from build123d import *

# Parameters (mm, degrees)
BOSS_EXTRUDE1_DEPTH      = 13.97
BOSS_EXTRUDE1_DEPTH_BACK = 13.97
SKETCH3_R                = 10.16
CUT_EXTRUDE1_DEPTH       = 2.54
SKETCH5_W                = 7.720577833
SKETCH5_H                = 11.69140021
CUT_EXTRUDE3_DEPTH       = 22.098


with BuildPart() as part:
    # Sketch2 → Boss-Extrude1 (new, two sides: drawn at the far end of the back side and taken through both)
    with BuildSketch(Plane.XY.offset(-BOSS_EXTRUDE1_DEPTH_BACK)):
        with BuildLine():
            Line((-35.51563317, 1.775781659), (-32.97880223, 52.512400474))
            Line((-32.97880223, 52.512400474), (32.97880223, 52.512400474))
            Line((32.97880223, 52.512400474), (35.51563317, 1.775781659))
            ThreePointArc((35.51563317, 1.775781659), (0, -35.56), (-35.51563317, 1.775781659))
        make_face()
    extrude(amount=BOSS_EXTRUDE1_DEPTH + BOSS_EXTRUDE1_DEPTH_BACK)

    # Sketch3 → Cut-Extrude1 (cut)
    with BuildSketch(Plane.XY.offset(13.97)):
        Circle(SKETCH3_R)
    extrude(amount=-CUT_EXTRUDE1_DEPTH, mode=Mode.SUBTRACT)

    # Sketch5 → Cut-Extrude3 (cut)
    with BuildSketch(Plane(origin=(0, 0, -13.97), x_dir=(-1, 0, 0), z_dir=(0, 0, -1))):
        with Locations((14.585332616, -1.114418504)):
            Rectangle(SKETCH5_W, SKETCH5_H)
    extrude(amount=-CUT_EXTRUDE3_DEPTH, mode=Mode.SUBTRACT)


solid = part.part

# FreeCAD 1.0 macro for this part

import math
import FreeCAD as App
import Part
import Sketcher
from FreeCAD import Vector
Q = App.Units.Quantity

doc = App.newDocument("Part")
body = doc.addObject("PartDesign::Body", "Body")

sketch1 = body.newObject("Sketcher::SketchObject", "Sketch")
sketch1.AttachmentSupport = (doc.getObject("XY_Plane"), [""])
sketch1.MapMode = "FlatFace"
sketch1.addGeometry([
    Part.LineSegment(Vector(-33, 53, 0), Vector(-36, 2, 0)),
    Part.ArcOfCircle(Part.Circle(Vector(0, 0, 0), Vector(0, 0, 1), 36), math.radians(177), math.radians(363)),
    Part.LineSegment(Vector(36, 2, 0), Vector(33, 53, 0)),
    Part.LineSegment(Vector(33, 53, 0), Vector(-33, 53, 0)),
], False)
sketch1.addConstraint([
    Sketcher.Constraint("Tangent", 0, 2, 1, 1),
    Sketcher.Constraint("Tangent", 1, 2, 2, 1),
    Sketcher.Constraint("Coincident", 2, 2, 3, 1),
    Sketcher.Constraint("Coincident", 3, 2, 0, 1),
    Sketcher.Constraint("Horizontal", 3),
    Sketcher.Constraint("Coincident", 1, 3, -1, 1),
    Sketcher.Constraint("Horizontal", 0, 2, 1, 2),
    Sketcher.Constraint("Radius", 1, Q("1.4 in")),
    Sketcher.Constraint("Distance", 0, Q("2 in")),
    Sketcher.Constraint("DistanceY", -1, 1, 2, 2, Q("52.5124 mm")),
])
pad1 = body.newObject("PartDesign::Pad", "Pad")
pad1.Profile = sketch1
pad1.Type = "TwoLengths"
pad1.Length = Q("0.55 in")
pad1.Length2 = Q("0.55 in")

sketch2 = body.newObject("Sketcher::SketchObject", "Sketch001")
sketch2.AttachmentSupport = (doc.getObject("XY_Plane"), [""])
sketch2.MapMode = "FlatFace"
sketch2.AttachmentOffset = App.Placement(Vector(0, 0, 0.55 * 25.4), App.Rotation())
sketch2.addGeometry(Part.Circle(Vector(0, 0, 0), Vector(0, 0, 1), 10), False)
sketch2.addConstraint([
    Sketcher.Constraint("Coincident", 0, 3, -1, 1),
    Sketcher.Constraint("Diameter", 0, Q("0.8 in")),
])
pocket1 = body.newObject("PartDesign::Pocket", "Pocket")
pocket1.Profile = sketch2
pocket1.Length = Q("0.1 in")

sketch3 = body.newObject("Sketcher::SketchObject", "Sketch002")
sketch3.AttachmentSupport = (doc.getObject("XY_Plane"), [""])
sketch3.MapMode = "FlatFace"
sketch3.AttachmentOffset = App.Placement(Vector(0, 0, -0.55 * 25.4), App.Rotation())
sketch3.addGeometry([
    Part.LineSegment(Vector(-11, 5, 0), Vector(-11, -7, 0)),
    Part.LineSegment(Vector(-11, -7, 0), Vector(-18, -7, 0)),
    Part.LineSegment(Vector(-18, -7, 0), Vector(-18, 5, 0)),
    Part.LineSegment(Vector(-18, 5, 0), Vector(-11, 5, 0)),
], False)
sketch3.addConstraint([
    Sketcher.Constraint("Coincident", 0, 2, 1, 1),
    Sketcher.Constraint("Coincident", 1, 2, 2, 1),
    Sketcher.Constraint("Coincident", 2, 2, 3, 1),
    Sketcher.Constraint("Coincident", 3, 2, 0, 1),
    Sketcher.Constraint("Vertical", 0),
    Sketcher.Constraint("Horizontal", 1),
    Sketcher.Constraint("Vertical", 2),
    Sketcher.Constraint("Horizontal", 3),
    Sketcher.Constraint("DistanceY", 0, 2, 0, 1, Q("11.6914 mm")),
    Sketcher.Constraint("DistanceX", 1, 2, 1, 1, Q("7.720578 mm")),
    Sketcher.Constraint("DistanceY", 0, 2, -1, 1, Q("6.960119 mm")),
    Sketcher.Constraint("DistanceX", 1, 2, -1, 1, Q("18.445622 mm")),
])
pocket2 = body.newObject("PartDesign::Pocket", "Pocket001")
pocket2.Profile = sketch3
pocket2.Length = Q("0.87 in")
pocket2.Reversed = True

doc.recompute()
